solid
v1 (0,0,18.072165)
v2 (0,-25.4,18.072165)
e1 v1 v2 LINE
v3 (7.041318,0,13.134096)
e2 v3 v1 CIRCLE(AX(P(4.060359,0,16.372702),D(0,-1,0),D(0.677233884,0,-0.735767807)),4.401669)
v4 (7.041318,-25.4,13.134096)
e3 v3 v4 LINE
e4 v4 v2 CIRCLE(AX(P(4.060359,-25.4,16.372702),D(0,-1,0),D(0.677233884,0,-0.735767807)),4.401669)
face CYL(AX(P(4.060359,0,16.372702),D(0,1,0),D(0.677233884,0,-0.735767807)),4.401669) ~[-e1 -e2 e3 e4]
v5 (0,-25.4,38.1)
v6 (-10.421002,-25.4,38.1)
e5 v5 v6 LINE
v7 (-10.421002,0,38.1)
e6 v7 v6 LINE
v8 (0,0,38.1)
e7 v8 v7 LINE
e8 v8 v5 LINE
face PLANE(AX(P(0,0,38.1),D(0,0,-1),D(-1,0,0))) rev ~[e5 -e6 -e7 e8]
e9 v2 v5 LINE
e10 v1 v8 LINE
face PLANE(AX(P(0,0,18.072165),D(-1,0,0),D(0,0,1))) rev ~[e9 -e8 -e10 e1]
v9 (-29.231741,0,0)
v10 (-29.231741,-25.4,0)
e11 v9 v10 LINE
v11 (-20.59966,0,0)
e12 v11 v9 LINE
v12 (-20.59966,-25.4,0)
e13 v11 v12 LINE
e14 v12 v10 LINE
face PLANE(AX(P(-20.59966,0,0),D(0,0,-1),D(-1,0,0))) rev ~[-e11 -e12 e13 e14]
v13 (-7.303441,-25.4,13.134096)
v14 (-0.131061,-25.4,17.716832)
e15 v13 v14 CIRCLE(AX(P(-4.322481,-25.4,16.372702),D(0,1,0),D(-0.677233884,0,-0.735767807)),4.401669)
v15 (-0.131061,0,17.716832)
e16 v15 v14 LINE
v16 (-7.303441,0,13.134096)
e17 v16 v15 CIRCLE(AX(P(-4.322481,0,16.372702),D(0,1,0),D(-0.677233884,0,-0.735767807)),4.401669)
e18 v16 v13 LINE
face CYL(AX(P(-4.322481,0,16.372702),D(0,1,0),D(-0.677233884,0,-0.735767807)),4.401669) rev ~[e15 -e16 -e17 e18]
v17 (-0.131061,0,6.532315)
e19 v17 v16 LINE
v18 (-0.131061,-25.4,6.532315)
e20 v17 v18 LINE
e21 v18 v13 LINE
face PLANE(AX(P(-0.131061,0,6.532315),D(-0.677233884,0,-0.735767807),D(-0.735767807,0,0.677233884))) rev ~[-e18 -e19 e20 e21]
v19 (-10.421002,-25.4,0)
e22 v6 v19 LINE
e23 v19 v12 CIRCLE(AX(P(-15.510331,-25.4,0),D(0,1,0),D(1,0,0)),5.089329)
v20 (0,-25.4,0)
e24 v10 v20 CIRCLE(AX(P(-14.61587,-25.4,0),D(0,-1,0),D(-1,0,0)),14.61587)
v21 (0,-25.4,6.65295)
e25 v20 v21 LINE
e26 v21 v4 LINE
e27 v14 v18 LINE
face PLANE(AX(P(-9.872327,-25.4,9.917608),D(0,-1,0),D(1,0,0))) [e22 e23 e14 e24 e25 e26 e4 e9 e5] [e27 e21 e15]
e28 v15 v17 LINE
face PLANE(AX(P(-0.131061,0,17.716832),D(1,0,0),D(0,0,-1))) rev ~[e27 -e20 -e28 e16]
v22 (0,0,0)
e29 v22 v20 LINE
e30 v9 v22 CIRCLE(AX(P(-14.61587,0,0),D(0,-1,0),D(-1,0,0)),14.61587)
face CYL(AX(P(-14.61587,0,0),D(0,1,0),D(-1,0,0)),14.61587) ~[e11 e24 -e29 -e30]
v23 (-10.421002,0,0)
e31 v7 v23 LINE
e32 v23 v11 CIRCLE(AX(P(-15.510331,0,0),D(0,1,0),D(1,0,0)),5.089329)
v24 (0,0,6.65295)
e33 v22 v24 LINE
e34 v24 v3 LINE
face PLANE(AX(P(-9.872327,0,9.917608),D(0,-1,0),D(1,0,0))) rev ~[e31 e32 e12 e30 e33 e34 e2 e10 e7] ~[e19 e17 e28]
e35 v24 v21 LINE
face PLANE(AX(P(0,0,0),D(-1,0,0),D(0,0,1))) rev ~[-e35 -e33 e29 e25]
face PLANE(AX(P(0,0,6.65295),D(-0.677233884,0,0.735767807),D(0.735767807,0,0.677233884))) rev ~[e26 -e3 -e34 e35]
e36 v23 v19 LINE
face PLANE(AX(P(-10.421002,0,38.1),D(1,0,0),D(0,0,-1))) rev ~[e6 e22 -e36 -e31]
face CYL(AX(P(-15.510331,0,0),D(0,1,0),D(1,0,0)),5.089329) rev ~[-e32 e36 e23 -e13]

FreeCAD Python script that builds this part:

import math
import FreeCAD as App
import Part
import Sketcher
from FreeCAD import Vector
Q = App.Units.Quantity

doc = App.newDocument("Part")
body = doc.addObject("PartDesign::Body", "Body")

# Sketch on XZ plane
sketch1 = doc.addObject("Sketcher::SketchObject", "Sketch")
body.addObject(sketch1)
sketch1.AttachmentSupport = (doc.XZ_Plane, [""])
sketch1.MapMode = "FlatFace"
sketch1.addGeometry(Part.ArcOfCircle(Part.Circle(Vector(-14.6, 0, 0), Vector(0, 0, 1), 14.6), math.radians(180), math.radians(360)), False)
sketch1.addGeometry(Part.LineSegment(Vector(0, 0, 0), Vector(0, 6.7, 0)), False)
sketch1.addGeometry(Part.LineSegment(Vector(0, 6.7, 0), Vector(7, 13.1, 0)), False)
sketch1.addGeometry(Part.ArcOfCircle(Part.Circle(Vector(4.1, 16.4, 0), Vector(0, 0, 1), 4.4), math.radians(-47), math.radians(157)), False)
sketch1.addGeometry(Part.LineSegment(Vector(0, 18.1, 0), Vector(0, 38.1, 0)), False)
sketch1.addGeometry(Part.LineSegment(Vector(0, 38.1, 0), Vector(-10.4, 38.1, 0)), False)
sketch1.addGeometry(Part.LineSegment(Vector(-10.4, 38.1, 0), Vector(-10.4, 0, 0)), False)
sketch1.addGeometry(Part.ArcOfCircle(Part.Circle(Vector(-15.5, 0, 0), Vector(0, 0, 1), 5.1), math.radians(180), math.radians(360)), False)
sketch1.addGeometry(Part.LineSegment(Vector(-20.6, 0, 0), Vector(-29.2, 0, 0)), False)
sketch1.addGeometry(Part.LineSegment(Vector(-0.1, 6.5, 0), Vector(-7.3, 13.1, 0)), False)
sketch1.addGeometry(Part.ArcOfCircle(Part.Circle(Vector(-4.3, 16.4, 0), Vector(0, 0, 1), 4.4), math.radians(18), math.radians(227)), False)
sketch1.addGeometry(Part.LineSegment(Vector(-0.1, 17.7, 0), Vector(-0.1, 6.5, 0)), False)
sketch1.addConstraint(Sketcher.Constraint("Tangent", 0, 2, 1, 1))
sketch1.addConstraint(Sketcher.Constraint("Coincident", 1, 2, 2, 1))
sketch1.addConstraint(Sketcher.Constraint("Tangent", 2, 2, 3, 1))
sketch1.addConstraint(Sketcher.Constraint("Coincident", 3, 2, 4, 1))
sketch1.addConstraint(Sketcher.Constraint("Coincident", 4, 2, 5, 1))
sketch1.addConstraint(Sketcher.Constraint("Coincident", 5, 2, 6, 1))
sketch1.addConstraint(Sketcher.Constraint("Tangent", 6, 2, 7, 2))
sketch1.addConstraint(Sketcher.Constraint("Coincident", 7, 1, 8, 1))
sketch1.addConstraint(Sketcher.Constraint("Coincident", 8, 2, 0, 1))
sketch1.addConstraint(Sketcher.Constraint("Tangent", 9, 2, 10, 2))
sketch1.addConstraint(Sketcher.Constraint("Coincident", 10, 1, 11, 1))
sketch1.addConstraint(Sketcher.Constraint("Coincident", 11, 2, 9, 1))
sketch1.addConstraint(Sketcher.Constraint("Vertical", 1))
sketch1.addConstraint(Sketcher.Constraint("Vertical", 4))
sketch1.addConstraint(Sketcher.Constraint("Horizontal", 5))
sketch1.addConstraint(Sketcher.Constraint("Vertical", 6))
sketch1.addConstraint(Sketcher.Constraint("Horizontal", 8))
sketch1.addConstraint(Sketcher.Constraint("Vertical", 11))
sketch1.addConstraint(Sketcher.Constraint("Coincident", 0, 2, -1, 1))
sketch1.addConstraint(Sketcher.Constraint("Equal", 3, 10))
sketch1.addConstraint(Sketcher.Constraint("PointOnObject", 7, 3, -1))
sketch1.addConstraint(Sketcher.Constraint("PointOnObject", 3, 2, -2))
sketch1.addConstraint(Sketcher.Constraint("PointOnObject", 7, 1, -1))
sketch1.addConstraint(Sketcher.Constraint("Horizontal", 3, 3, 10, 3))
sketch1.addConstraint(Sketcher.Constraint("Horizontal", 2, 2, 9, 2))
sketch1.addConstraint(Sketcher.Constraint("DistanceY", 6, 2, 6, 1, Q("1.5 in")))
sketch1.addConstraint(Sketcher.Constraint("Radius", 0, 14.61587))
sketch1.addConstraint(Sketcher.Constraint("Radius", 3, 4.401669))
sketch1.addConstraint(Sketcher.Constraint("Radius", 7, 5.089329))
sketch1.addConstraint(Sketcher.Constraint("DistanceX", 8, 2, 8, 1, 8.632081))
sketch1.addConstraint(Sketcher.Constraint("DistanceY", 1, 1, 1, 2, 6.65295))
sketch1.addConstraint(Sketcher.Constraint("DistanceX", 10, 3, 2, 2, 11.363799))
sketch1.addConstraint(Sketcher.Constraint("DistanceY", 4, 1, 4, 2, 20.027835))
sketch1.addConstraint(Sketcher.Constraint("DistanceY", 11, 2, 11, 1, 11.184517))
sketch1.addConstraint(Sketcher.Constraint("DistanceX", -1, 1, 3, 3, 4.060359))
pad1 = doc.addObject("PartDesign::Pad", "Pad")
body.addObject(pad1)
pad1.Profile = sketch1
pad1.Length = Q("1 in")

doc.recompute()
